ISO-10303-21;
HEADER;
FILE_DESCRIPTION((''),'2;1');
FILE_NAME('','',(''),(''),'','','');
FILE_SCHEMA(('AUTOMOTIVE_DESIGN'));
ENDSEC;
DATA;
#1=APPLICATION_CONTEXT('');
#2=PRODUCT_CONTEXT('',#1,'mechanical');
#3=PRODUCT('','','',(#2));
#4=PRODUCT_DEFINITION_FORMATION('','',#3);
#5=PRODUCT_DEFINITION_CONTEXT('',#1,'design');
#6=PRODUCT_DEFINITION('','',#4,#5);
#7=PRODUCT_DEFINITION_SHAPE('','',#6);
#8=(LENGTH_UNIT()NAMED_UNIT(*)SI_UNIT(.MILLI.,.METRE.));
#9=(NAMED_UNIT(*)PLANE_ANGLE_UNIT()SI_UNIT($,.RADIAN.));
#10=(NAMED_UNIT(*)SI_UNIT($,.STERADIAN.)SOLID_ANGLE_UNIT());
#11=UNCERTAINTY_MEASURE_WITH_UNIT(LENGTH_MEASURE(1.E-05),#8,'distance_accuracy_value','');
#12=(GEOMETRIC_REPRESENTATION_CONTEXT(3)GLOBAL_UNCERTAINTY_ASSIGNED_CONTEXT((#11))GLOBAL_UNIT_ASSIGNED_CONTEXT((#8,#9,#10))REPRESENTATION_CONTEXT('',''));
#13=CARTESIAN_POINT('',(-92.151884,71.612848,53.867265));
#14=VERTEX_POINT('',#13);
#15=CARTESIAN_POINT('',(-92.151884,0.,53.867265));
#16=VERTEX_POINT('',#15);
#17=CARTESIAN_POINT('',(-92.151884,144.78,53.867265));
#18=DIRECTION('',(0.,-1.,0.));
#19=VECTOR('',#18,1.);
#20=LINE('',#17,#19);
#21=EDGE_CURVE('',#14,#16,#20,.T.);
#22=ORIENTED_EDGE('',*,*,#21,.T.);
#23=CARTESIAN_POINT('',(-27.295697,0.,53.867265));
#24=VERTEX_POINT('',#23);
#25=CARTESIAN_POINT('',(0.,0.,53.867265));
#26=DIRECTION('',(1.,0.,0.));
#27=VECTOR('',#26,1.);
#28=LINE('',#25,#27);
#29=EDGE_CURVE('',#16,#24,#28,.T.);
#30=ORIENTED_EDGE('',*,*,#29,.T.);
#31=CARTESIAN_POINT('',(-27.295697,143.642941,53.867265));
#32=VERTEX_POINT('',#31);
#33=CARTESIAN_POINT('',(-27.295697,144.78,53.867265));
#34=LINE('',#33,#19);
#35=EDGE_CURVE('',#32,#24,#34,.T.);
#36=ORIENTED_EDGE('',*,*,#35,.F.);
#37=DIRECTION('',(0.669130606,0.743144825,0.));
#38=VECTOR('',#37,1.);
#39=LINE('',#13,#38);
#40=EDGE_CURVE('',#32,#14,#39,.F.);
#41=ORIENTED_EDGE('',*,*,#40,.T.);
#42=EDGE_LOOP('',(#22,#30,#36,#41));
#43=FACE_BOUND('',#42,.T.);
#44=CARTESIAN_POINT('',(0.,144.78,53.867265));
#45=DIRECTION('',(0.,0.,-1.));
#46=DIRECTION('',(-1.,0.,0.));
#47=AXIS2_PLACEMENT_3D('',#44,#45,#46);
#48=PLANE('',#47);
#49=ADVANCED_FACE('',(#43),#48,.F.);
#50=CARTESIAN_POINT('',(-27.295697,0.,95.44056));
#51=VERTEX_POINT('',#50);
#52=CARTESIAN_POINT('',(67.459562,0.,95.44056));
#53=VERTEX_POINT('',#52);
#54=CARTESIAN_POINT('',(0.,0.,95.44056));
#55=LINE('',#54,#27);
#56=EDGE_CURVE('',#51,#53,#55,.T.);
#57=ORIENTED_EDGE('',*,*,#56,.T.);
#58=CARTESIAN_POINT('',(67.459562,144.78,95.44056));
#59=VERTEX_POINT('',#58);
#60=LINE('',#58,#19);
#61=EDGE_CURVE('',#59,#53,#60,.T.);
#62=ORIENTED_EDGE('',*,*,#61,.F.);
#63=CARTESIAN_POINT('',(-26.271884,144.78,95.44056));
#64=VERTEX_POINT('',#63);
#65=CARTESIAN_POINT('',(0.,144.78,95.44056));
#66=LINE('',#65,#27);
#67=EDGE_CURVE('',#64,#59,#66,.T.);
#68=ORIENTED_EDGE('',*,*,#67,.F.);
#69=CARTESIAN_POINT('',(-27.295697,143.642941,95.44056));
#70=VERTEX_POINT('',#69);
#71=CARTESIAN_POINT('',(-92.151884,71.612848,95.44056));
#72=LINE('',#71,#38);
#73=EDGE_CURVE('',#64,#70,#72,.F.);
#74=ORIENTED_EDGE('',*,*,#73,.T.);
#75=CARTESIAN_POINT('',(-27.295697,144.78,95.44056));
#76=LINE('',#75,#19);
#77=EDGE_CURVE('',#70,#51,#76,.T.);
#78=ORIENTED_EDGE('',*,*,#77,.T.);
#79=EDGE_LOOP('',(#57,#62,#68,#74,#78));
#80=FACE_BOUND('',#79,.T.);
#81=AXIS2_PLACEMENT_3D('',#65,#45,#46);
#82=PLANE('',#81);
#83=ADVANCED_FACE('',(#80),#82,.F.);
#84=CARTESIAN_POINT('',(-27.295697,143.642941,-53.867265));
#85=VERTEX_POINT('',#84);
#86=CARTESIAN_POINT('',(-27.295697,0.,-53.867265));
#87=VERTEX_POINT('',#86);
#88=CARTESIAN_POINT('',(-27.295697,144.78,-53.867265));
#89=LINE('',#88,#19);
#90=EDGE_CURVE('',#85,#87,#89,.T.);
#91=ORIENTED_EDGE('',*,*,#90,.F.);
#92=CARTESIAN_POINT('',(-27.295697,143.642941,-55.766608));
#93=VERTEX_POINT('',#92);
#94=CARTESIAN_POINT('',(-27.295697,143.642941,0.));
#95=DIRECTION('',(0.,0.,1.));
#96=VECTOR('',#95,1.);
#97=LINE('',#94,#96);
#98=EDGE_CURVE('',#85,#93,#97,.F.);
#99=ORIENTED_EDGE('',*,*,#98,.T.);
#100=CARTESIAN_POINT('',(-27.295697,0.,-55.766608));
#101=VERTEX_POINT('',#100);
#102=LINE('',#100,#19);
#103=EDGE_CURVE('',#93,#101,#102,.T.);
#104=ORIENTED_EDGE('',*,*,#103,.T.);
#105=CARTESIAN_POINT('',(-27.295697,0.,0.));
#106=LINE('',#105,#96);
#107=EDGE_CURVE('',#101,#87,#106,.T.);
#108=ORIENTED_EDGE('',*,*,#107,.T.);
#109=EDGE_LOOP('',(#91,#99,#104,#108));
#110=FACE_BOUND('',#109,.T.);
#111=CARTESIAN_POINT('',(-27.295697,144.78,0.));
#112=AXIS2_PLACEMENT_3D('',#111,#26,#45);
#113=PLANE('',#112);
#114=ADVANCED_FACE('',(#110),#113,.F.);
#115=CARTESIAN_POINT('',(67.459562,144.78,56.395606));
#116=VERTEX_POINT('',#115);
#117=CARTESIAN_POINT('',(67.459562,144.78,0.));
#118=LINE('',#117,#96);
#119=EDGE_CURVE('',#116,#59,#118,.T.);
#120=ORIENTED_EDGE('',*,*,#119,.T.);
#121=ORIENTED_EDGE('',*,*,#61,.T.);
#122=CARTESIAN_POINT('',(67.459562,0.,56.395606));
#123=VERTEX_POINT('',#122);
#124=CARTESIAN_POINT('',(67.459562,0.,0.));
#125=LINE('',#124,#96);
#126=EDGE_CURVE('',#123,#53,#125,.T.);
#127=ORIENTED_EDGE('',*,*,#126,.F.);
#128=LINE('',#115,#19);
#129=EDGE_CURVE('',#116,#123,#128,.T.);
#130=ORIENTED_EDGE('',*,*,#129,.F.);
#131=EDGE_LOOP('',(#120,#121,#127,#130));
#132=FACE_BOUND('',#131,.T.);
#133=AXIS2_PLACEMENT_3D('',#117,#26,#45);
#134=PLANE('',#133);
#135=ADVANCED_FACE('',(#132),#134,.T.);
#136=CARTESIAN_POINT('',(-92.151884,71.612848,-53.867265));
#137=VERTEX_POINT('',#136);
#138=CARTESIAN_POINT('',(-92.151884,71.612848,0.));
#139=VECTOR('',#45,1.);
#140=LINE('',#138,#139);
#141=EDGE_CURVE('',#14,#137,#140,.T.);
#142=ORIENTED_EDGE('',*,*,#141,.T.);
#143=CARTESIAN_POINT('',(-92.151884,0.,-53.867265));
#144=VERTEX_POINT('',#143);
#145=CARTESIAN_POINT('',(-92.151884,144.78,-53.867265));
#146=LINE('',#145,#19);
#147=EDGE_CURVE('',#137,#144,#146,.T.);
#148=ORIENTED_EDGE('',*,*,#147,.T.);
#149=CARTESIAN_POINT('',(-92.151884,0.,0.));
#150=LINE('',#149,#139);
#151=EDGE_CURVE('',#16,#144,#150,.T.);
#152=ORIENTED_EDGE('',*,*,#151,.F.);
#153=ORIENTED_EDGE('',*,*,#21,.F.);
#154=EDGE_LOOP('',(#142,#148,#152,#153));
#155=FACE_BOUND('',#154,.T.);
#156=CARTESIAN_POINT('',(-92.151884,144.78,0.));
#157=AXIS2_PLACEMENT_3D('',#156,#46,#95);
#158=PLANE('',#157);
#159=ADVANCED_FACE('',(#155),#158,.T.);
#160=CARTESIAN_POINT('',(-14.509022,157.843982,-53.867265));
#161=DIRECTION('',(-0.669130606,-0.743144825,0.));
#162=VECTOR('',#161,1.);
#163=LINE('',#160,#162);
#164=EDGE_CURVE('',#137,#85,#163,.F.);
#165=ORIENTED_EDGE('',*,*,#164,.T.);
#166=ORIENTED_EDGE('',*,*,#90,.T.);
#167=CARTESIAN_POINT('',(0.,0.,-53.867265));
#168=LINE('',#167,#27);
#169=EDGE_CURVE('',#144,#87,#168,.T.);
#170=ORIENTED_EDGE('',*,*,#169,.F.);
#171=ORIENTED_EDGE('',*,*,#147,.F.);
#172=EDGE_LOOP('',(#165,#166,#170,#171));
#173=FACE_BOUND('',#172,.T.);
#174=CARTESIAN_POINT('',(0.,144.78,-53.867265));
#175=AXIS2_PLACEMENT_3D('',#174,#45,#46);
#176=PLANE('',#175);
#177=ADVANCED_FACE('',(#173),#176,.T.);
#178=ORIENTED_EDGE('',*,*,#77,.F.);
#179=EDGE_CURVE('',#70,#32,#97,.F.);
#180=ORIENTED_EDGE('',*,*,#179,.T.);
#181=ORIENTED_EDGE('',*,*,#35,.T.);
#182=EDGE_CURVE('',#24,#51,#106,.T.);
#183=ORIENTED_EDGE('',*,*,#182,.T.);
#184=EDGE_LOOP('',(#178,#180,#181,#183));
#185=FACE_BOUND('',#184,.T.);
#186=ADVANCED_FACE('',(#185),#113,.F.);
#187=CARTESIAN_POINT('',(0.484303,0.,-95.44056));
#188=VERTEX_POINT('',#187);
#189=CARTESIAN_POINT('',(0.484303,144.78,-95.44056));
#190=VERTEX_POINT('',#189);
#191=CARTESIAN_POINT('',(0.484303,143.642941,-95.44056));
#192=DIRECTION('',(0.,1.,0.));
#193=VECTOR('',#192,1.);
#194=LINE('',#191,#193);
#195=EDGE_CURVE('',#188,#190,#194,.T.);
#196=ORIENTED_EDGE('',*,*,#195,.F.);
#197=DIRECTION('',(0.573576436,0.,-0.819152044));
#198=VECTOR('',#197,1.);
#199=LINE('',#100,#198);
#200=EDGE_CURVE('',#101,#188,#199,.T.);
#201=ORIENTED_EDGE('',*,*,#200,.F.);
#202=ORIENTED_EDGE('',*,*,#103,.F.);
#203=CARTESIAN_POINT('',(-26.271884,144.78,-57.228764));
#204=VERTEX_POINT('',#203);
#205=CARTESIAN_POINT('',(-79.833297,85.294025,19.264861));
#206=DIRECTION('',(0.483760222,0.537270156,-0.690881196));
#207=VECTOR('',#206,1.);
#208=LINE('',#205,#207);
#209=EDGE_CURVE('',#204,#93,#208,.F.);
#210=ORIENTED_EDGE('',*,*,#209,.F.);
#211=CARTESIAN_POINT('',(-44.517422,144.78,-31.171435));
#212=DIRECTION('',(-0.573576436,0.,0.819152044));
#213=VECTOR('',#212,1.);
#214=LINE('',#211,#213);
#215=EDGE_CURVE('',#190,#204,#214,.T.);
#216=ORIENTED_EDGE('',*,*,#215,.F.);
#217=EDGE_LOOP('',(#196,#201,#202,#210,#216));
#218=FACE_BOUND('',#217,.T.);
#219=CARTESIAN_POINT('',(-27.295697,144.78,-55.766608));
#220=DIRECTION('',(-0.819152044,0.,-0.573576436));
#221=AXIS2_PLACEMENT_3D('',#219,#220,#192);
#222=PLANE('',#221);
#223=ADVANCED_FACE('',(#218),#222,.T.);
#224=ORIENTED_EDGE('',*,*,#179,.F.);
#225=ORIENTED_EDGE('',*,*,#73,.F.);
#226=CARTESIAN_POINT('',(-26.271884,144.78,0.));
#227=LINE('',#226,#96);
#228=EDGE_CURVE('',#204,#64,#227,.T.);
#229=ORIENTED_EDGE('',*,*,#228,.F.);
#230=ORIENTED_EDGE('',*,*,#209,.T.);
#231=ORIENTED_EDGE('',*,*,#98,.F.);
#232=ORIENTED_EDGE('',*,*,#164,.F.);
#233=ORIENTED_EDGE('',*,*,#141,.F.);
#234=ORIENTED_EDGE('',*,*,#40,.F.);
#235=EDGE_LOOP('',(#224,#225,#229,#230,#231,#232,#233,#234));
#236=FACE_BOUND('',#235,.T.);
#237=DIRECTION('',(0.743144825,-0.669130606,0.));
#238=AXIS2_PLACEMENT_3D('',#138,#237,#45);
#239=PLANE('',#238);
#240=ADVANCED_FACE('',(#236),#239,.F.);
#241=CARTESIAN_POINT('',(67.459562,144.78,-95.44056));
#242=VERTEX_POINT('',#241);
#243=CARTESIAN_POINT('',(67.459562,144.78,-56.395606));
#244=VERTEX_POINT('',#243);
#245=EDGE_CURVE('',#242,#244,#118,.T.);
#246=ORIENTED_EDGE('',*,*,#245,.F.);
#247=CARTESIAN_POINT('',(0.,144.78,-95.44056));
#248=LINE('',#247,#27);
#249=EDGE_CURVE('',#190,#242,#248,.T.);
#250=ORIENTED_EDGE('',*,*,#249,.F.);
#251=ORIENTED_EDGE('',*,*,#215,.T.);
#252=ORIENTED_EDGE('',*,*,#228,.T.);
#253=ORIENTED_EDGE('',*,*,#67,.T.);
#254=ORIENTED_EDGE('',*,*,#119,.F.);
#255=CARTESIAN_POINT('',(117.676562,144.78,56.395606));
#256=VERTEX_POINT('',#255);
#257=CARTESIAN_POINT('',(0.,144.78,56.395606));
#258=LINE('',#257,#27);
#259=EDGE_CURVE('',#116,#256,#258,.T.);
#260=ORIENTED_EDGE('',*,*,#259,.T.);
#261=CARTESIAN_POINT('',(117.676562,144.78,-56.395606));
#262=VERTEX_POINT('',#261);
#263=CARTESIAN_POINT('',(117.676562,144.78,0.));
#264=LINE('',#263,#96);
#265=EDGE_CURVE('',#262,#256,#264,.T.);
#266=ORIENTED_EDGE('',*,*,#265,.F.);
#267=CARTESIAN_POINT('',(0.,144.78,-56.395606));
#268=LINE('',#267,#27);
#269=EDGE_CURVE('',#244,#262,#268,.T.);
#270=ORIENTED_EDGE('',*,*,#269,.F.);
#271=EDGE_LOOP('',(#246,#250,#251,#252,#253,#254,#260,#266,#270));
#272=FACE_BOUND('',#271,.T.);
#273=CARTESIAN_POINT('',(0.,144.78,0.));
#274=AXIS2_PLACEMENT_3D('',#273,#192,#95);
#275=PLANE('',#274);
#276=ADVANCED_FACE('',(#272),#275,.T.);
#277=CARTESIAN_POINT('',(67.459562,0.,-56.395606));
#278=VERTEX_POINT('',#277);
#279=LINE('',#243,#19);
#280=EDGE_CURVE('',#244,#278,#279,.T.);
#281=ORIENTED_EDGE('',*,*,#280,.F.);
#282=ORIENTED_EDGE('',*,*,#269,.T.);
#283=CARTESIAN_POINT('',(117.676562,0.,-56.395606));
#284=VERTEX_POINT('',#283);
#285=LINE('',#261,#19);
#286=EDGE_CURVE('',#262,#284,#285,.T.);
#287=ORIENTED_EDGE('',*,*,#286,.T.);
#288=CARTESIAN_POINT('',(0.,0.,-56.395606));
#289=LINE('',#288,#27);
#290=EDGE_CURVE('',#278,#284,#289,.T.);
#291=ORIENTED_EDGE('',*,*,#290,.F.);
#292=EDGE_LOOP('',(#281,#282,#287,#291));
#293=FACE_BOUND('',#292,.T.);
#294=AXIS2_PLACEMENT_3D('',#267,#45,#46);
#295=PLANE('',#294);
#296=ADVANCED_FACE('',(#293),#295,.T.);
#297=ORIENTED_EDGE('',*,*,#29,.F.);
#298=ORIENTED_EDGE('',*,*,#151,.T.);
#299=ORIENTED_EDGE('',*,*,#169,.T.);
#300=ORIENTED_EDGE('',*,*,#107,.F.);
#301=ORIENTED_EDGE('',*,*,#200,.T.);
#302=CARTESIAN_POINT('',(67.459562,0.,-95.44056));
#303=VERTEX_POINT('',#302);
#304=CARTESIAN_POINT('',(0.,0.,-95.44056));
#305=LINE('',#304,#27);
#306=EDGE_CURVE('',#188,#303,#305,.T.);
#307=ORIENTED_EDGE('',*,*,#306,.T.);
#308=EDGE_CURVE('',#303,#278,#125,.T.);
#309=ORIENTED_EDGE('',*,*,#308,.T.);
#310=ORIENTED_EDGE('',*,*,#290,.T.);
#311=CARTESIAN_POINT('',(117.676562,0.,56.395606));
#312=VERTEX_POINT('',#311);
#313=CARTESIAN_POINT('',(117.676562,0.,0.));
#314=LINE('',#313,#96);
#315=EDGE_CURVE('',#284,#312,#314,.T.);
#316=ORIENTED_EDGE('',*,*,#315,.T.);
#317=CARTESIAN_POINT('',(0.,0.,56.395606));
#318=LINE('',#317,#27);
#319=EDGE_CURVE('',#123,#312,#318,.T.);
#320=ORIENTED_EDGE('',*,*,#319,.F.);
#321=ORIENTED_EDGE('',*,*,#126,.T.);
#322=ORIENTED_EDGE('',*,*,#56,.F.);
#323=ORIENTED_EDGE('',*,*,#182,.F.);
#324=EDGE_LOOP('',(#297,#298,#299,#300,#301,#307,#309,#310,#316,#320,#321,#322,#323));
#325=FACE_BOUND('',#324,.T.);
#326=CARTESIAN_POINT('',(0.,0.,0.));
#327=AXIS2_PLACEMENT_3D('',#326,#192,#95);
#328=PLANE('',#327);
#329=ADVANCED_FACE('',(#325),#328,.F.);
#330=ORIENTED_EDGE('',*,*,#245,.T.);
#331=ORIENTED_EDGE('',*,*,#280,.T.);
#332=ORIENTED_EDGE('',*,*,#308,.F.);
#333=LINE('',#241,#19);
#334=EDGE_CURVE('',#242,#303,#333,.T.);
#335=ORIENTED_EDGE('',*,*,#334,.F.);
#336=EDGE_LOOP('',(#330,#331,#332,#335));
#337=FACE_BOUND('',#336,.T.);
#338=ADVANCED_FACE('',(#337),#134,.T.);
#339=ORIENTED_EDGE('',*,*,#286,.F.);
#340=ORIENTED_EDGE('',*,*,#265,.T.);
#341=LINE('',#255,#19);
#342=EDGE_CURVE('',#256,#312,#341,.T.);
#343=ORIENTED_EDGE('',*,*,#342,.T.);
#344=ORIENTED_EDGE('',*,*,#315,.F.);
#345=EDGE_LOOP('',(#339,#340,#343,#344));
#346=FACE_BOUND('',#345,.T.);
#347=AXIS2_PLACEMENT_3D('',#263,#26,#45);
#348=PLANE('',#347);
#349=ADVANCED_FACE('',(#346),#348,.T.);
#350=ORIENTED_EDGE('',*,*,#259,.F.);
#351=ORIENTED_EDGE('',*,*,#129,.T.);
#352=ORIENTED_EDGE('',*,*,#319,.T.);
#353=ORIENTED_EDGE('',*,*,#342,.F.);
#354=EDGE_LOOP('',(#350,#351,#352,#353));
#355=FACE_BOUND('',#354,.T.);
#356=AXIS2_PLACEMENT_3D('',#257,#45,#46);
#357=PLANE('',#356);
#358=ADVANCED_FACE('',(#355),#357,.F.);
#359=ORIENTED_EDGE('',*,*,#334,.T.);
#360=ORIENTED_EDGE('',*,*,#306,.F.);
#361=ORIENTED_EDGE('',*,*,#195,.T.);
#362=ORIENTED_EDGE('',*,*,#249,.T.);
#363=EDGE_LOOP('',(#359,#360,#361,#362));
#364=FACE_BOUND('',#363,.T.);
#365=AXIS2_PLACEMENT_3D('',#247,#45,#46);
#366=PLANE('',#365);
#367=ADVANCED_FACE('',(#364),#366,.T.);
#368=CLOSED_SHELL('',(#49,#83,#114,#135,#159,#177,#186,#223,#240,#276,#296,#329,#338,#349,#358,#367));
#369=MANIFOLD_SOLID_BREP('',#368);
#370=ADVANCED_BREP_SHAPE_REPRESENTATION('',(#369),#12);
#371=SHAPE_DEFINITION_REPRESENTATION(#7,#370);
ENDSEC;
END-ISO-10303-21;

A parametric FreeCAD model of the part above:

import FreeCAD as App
import Part
import Sketcher

V = App.Vector
Q = App.Units.Quantity


def edges_at(feature, points):
    """Names of the edges that pass closest to the given points."""
    edges = feature.Shape.Edges
    near = lambda p: min(range(len(edges)), key=lambda i: edges[i].distToShape(Part.Vertex(*p))[0])
    return sorted({f"Edge{near(p) + 1}" for p in points})


def add_polygon(sketch, points):
    """Adds a closed chain of lines whose ends are joined by coincident constraints."""
    first, n = sketch.GeometryCount, len(points)
    for a, b in zip(points, points[1:] + points[:1]):
        sketch.addGeometry(Part.LineSegment(App.Vector(*a, 0), App.Vector(*b, 0)), False)
    for i in range(n):
        sketch.addConstraint(Sketcher.Constraint("Coincident", first + i, 2, first + (i + 1) % n, 1))

doc = App.newDocument("Part")
body = doc.addObject("PartDesign::Body", "Body")

# Sketch on XZ plane
sketch1 = body.newObject("Sketcher::SketchObject", "Sketch")
sketch1.AttachmentSupport = (doc.getObject("XZ_Plane"), [""])
sketch1.MapMode = "FlatFace"
add_polygon(sketch1, [(-92, 54), (-27, 54), (-27, 95), (67, 95), (67, 56), (118, 56), (118, -56), (67, -56), (67, -95), (-27, -95), (-27, -54), (-92, -54)])  # lines 0-11
sketch1.addConstraint(Sketcher.Constraint("Horizontal", 0))
sketch1.addConstraint(Sketcher.Constraint("Vertical", 1))
sketch1.addConstraint(Sketcher.Constraint("Horizontal", 2))
sketch1.addConstraint(Sketcher.Constraint("Vertical", 3))
sketch1.addConstraint(Sketcher.Constraint("Horizontal", 4))
sketch1.addConstraint(Sketcher.Constraint("Vertical", 5))
sketch1.addConstraint(Sketcher.Constraint("Horizontal", 6))
sketch1.addConstraint(Sketcher.Constraint("Vertical", 7))
sketch1.addConstraint(Sketcher.Constraint("Horizontal", 8))
sketch1.addConstraint(Sketcher.Constraint("Vertical", 9))
sketch1.addConstraint(Sketcher.Constraint("Horizontal", 10))
sketch1.addConstraint(Sketcher.Constraint("Vertical", 11))
sketch1.addConstraint(Sketcher.Constraint("Symmetric", 3, 2, 6, 2, -1))
sketch1.addConstraint(Sketcher.Constraint("Symmetric", 1, 2, 8, 2, -1))
sketch1.addConstraint(Sketcher.Constraint("Equal", 1, 9))
sketch1.addConstraint(Sketcher.Constraint("DistanceX", 4, 1, 4, 2, Q("50.217 mm")))
sketch1.addConstraint(Sketcher.Constraint("DistanceX", 2, 1, 2, 2, Q("94.755259 mm")))
sketch1.addConstraint(Sketcher.Constraint("DistanceY", 5, 2, 5, 1, Q("112.791211 mm")))
sketch1.addConstraint(Sketcher.Constraint("DistanceY", 11, 1, 11, 2, Q("107.734531 mm")))
sketch1.addConstraint(Sketcher.Constraint("DistanceX", 0, 1, 0, 2, Q("64.856188 mm")))
sketch1.addConstraint(Sketcher.Constraint("DistanceY", 1, 1, 1, 2, Q("41.573294 mm")))
sketch1.addConstraint(Sketcher.Constraint("DistanceX", 0, 2, -1, 1, Q("27.295697 mm")))
pad1 = body.newObject("PartDesign::Pad", "Pad")
pad1.Profile = sketch1
pad1.Length = Q("5.7 in")
pad1.Reversed = True
doc.recompute()

chamfer = body.newObject("PartDesign::Chamfer", "Chamfer")
chamfer.Base = (pad1, edges_at(pad1, [(-92.152, 144.78, 0)]))
chamfer.ChamferType = "Two distances"
chamfer.Size = 65.88
chamfer.Size2 = 73.167152
chamfer.FlipDirection = True
doc.recompute()

chamfer2 = body.newObject("PartDesign::Chamfer", "Chamfer001")
chamfer2.Base = (chamfer, edges_at(chamfer, [(-27.296, 71.821, -95.441)]))
chamfer2.ChamferType = "Two distances"
chamfer2.Size = 27.78
chamfer2.Size2 = 39.673952

doc.recompute()
